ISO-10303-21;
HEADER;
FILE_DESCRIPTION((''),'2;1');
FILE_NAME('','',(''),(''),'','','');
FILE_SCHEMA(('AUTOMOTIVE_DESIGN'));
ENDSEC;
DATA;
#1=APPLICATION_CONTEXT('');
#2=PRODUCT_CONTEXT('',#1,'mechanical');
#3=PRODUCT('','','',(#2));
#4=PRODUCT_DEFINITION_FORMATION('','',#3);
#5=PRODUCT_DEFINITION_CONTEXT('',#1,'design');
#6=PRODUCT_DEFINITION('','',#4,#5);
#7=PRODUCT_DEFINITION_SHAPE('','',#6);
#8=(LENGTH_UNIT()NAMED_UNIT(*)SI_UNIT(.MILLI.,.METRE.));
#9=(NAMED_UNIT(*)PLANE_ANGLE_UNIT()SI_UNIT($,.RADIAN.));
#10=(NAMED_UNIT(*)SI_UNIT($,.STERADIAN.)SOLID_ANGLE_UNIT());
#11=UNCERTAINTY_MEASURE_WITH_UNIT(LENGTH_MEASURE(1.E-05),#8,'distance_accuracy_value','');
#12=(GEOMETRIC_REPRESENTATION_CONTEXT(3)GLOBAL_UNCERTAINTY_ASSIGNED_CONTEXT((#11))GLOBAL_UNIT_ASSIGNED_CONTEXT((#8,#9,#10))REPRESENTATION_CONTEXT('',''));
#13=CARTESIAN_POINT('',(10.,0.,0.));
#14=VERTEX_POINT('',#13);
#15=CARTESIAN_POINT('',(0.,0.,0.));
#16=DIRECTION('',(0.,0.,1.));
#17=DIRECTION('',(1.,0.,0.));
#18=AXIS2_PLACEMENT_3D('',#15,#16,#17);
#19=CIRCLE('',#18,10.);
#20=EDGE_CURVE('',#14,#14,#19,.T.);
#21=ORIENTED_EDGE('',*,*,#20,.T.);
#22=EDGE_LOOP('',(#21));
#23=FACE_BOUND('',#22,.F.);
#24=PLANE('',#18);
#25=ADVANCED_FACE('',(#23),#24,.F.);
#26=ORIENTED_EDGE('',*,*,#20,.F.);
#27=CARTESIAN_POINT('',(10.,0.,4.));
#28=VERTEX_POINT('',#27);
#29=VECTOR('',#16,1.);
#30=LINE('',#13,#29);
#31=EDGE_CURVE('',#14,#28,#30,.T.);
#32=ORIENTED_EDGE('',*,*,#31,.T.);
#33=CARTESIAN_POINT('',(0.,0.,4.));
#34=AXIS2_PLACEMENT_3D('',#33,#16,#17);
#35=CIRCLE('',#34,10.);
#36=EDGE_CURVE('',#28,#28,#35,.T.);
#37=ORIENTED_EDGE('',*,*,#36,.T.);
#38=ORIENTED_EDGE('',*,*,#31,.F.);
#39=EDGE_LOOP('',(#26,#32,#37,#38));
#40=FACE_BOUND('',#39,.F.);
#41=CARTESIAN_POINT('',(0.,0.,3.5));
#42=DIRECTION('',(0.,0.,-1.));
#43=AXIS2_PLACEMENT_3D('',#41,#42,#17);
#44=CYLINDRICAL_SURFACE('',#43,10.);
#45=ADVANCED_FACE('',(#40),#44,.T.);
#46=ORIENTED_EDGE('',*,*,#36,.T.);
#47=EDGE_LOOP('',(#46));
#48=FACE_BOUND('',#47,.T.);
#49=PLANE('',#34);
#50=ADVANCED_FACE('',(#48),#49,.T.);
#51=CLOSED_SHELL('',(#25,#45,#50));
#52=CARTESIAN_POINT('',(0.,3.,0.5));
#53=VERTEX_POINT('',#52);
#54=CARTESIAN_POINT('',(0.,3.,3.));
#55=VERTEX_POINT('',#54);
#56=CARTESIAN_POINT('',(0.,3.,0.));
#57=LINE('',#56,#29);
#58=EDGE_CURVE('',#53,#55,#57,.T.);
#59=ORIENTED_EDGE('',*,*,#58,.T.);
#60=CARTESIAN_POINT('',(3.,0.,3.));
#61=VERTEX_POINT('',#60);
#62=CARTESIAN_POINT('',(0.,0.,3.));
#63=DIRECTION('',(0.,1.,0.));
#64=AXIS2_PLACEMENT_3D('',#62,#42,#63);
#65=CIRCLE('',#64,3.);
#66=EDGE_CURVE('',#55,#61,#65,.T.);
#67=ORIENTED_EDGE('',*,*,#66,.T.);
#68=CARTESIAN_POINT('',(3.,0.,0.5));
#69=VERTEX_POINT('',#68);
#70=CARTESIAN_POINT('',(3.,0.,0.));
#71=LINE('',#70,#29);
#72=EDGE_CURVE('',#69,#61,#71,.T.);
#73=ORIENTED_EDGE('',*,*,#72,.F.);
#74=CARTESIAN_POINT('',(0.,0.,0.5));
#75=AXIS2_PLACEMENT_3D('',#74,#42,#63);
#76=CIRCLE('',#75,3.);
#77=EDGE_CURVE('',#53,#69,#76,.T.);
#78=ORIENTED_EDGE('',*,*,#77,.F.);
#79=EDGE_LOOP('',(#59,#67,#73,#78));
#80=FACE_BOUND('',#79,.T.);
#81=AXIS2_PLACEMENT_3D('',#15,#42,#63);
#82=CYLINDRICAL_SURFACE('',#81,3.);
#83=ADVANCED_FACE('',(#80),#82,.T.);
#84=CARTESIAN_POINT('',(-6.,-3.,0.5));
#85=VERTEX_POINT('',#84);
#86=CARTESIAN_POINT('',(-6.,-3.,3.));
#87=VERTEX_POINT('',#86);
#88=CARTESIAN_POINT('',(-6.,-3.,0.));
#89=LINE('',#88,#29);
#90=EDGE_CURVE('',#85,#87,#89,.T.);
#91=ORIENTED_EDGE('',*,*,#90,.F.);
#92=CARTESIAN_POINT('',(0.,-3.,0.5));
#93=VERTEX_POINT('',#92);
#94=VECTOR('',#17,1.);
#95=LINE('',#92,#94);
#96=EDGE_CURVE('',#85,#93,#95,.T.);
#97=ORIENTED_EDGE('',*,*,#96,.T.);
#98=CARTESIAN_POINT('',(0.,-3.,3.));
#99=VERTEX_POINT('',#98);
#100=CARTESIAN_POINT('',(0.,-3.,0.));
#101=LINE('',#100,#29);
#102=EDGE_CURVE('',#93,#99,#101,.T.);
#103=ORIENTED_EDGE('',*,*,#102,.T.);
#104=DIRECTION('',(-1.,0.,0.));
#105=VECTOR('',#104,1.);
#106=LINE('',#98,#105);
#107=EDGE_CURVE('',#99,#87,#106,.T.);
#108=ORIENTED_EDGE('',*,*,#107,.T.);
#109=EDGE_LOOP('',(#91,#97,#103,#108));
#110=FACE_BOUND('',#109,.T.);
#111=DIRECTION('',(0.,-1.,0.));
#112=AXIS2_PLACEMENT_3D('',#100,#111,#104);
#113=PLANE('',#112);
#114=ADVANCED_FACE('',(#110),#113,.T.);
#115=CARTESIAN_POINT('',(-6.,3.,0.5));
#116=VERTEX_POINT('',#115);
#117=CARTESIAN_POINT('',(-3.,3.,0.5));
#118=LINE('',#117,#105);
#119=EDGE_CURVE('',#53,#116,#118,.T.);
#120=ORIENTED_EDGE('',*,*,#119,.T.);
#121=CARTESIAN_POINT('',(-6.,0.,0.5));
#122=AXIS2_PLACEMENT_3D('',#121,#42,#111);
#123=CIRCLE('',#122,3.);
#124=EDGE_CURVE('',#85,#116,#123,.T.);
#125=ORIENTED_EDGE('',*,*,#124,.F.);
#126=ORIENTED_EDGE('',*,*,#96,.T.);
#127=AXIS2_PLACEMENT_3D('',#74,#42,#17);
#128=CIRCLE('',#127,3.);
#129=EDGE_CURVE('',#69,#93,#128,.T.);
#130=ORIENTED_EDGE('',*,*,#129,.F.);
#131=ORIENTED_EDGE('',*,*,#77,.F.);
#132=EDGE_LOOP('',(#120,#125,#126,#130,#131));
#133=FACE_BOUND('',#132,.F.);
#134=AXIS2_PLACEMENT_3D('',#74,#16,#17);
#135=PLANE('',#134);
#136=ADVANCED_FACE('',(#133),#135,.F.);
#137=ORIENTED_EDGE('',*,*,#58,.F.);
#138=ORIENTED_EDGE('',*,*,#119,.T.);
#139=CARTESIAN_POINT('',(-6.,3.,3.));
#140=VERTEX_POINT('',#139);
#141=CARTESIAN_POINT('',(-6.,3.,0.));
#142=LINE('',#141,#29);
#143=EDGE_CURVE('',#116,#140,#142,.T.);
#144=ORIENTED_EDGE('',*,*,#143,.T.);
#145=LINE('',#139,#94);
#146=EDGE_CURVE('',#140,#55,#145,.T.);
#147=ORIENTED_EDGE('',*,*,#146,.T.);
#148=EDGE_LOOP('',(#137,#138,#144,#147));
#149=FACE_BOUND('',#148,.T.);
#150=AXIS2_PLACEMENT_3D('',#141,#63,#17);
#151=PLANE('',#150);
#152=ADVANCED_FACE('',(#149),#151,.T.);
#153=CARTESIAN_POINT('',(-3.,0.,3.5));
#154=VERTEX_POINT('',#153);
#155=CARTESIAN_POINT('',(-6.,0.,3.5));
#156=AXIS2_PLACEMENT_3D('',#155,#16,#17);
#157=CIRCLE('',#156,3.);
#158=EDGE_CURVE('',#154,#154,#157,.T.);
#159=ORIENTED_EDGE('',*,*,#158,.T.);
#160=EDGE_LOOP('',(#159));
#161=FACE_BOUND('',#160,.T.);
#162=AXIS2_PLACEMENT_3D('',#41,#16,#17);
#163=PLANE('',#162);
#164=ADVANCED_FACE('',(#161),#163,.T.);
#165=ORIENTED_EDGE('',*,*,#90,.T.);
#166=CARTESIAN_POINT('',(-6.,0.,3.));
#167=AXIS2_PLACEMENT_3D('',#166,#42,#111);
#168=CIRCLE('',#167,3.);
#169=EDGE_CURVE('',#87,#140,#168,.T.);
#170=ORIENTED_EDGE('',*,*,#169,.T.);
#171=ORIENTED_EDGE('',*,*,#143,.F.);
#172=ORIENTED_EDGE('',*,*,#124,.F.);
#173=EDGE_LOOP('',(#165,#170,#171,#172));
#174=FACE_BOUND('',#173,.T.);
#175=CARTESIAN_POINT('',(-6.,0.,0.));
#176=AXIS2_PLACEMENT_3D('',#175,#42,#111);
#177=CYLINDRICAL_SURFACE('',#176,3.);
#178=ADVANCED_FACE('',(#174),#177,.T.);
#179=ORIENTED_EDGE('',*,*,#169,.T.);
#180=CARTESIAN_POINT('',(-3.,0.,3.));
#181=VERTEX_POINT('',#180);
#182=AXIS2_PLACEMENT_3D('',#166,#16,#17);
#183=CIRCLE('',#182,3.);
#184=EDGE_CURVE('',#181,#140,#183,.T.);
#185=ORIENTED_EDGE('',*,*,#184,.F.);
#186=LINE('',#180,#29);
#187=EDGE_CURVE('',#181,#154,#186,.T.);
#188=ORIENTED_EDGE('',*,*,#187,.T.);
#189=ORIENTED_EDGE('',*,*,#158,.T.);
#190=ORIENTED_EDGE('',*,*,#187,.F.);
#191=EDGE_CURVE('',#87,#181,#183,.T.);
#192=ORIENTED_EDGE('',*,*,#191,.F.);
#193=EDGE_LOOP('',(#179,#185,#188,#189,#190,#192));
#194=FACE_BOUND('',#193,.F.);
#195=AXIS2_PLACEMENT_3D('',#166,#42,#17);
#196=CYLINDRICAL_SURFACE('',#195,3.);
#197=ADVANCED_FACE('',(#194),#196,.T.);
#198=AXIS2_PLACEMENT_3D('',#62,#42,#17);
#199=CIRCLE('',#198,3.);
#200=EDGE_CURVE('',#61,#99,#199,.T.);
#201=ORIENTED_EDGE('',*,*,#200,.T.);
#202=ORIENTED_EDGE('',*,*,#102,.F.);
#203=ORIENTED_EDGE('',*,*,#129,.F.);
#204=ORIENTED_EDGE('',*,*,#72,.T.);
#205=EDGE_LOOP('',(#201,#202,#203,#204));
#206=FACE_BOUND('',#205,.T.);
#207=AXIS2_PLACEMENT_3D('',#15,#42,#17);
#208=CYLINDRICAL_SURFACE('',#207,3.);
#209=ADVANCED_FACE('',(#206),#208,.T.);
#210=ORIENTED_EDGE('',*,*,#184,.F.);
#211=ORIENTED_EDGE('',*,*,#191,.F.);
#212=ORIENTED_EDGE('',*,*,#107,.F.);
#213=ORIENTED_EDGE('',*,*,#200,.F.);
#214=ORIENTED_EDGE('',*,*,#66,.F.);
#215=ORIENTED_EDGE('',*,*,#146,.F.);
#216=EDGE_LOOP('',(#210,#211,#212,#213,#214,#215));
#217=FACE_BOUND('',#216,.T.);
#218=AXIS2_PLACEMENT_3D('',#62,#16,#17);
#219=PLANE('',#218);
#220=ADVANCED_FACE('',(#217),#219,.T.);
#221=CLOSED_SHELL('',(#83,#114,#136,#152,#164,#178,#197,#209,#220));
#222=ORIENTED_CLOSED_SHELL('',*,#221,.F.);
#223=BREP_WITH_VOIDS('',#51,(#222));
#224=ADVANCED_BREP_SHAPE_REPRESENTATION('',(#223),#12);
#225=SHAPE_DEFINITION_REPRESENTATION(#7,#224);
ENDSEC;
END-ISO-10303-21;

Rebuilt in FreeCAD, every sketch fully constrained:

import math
import FreeCAD as App
import Part
import Sketcher

V = App.Vector
Q = App.Units.Quantity

doc = App.newDocument("Part")
params = doc.addObject("Spreadsheet::Sheet", "Params")
for row, (alias, value) in enumerate([
    ("sketch1_diameter", "20 mm"),
    ("pad1_length", "0.5 mm"),
    ("sketch2_diameter", "20 mm"),
    ("sketch2_radius", "3 mm"),
    ("sketch2_width", "6 mm"),
    ("pad2_length", "3 mm"),
    ("sketch3_diameter", "20 mm"),
    ("sketch3_diameter2", "6 mm"),
    ("pad3_length", "0.5 mm"),
    ("sketch4_diameter", "20 mm"),
    ("pad4_length", "0.5 mm"),
], start=1):
    params.set(f"A{row}", alias)
    params.set(f"B{row}", "=" + value)
    params.setAlias(f"B{row}", alias)

body = doc.addObject("PartDesign::Body", "Body")

# Sketch on XY plane
sketch1 = doc.addObject("Sketcher::SketchObject", "Sketch")
body.addObject(sketch1)
sketch1.AttachmentSupport = (doc.XY_Plane, [""])
sketch1.MapMode = "FlatFace"
sketch1.addGeometry(Part.Circle(V(0, 0, 0), V(0, 0, 1), 10), False)
sketch1.addConstraint(Sketcher.Constraint("Coincident", 0, 3, -1, 1))
sketch1.addConstraint(Sketcher.Constraint("Diameter", 0, Q("20 mm")))
sketch1.setExpression("Constraints[1]", "Params.sketch1_diameter")
pad1 = doc.addObject("PartDesign::Pad", "Pad")
body.addObject(pad1)
pad1.Profile = sketch1
pad1.setExpression("Length", "Params.pad1_length")

# Sketch on XY plane
sketch2 = doc.addObject("Sketcher::SketchObject", "Sketch001")
body.addObject(sketch2)
sketch2.AttachmentSupport = (doc.XY_Plane, [""])
sketch2.MapMode = "FlatFace"
sketch2.addGeometry(Part.Circle(V(0, 0, 0), V(0, 0, 1), 10), False)
sketch2.addGeometry(Part.LineSegment(V(-6, 3, 0), V(0, 3, 0)), False)
sketch2.addGeometry(Part.ArcOfCircle(Part.Circle(V(0, 0, 0), V(0, 0, 1), 3), math.radians(0), math.radians(90)), False)
sketch2.addGeometry(Part.ArcOfCircle(Part.Circle(V(0, 0, 0), V(0, 0, 1), 3), math.radians(-90), math.radians(0)), False)
sketch2.addGeometry(Part.LineSegment(V(0, -3, 0), V(-6, -3, 0)), False)
sketch2.addGeometry(Part.ArcOfCircle(Part.Circle(V(-6, 0, 0), V(0, 0, 1), 3), math.radians(90), math.radians(270)), False)
sketch2.addConstraint(Sketcher.Constraint("Tangent", 1, 2, 2, 2))
sketch2.addConstraint(Sketcher.Constraint("Tangent", 2, 1, 3, 2))
sketch2.addConstraint(Sketcher.Constraint("Tangent", 3, 1, 4, 1))
sketch2.addConstraint(Sketcher.Constraint("Tangent", 4, 2, 5, 2))
sketch2.addConstraint(Sketcher.Constraint("Tangent", 5, 1, 1, 1))
sketch2.addConstraint(Sketcher.Constraint("Horizontal", 1))
sketch2.addConstraint(Sketcher.Constraint("Horizontal", 4))
sketch2.addConstraint(Sketcher.Constraint("Coincident", 0, 3, -1, 1))
sketch2.addConstraint(Sketcher.Constraint("Coincident", 2, 3, -1, 1))
sketch2.addConstraint(Sketcher.Constraint("Equal", 2, 3))
sketch2.addConstraint(Sketcher.Constraint("PointOnObject", 2, 1, -1))
sketch2.addConstraint(Sketcher.Constraint("Diameter", 0, Q("20 mm")))
sketch2.addConstraint(Sketcher.Constraint("Radius", 2, Q("3 mm")))
sketch2.addConstraint(Sketcher.Constraint("DistanceX", 1, 1, 1, 2, Q("6 mm")))
sketch2.setExpression("Constraints[11]", "Params.sketch2_diameter")
sketch2.setExpression("Constraints[12]", "Params.sketch2_radius")
sketch2.setExpression("Constraints[13]", "Params.sketch2_width")
pad2 = doc.addObject("PartDesign::Pad", "Pad001")
body.addObject(pad2)
pad2.Profile = sketch2
pad2.setExpression("Length", "Params.pad2_length")

# Sketch on XY plane
sketch3 = doc.addObject("Sketcher::SketchObject", "Sketch002")
body.addObject(sketch3)
sketch3.AttachmentSupport = (doc.XY_Plane, [""])
sketch3.MapMode = "FlatFace"
sketch3.AttachmentOffset = App.Placement(V(0, 0, 3), App.Rotation())
sketch3.addGeometry(Part.Circle(V(0, 0, 0), V(0, 0, 1), 10), False)
sketch3.addGeometry(Part.Circle(V(-6, 0, 0), V(0, 0, 1), 3), False)
sketch3.addConstraint(Sketcher.Constraint("Coincident", 0, 3, -1, 1))
sketch3.addConstraint(Sketcher.Constraint("PointOnObject", 1, 3, -1))
sketch3.addConstraint(Sketcher.Constraint("Diameter", 0, Q("20 mm")))
sketch3.addConstraint(Sketcher.Constraint("Diameter", 1, Q("6 mm")))
sketch3.addConstraint(Sketcher.Constraint("DistanceX", 1, 3, -1, 1, Q("6 mm")))
sketch3.setExpression("Constraints[2]", "Params.sketch3_diameter")
sketch3.setExpression("Constraints[3]", "Params.sketch3_diameter2")
pad3 = doc.addObject("PartDesign::Pad", "Pad002")
body.addObject(pad3)
pad3.Profile = sketch3
pad3.setExpression("Length", "Params.pad3_length")

# Sketch on XY plane
sketch4 = doc.addObject("Sketcher::SketchObject", "Sketch003")
body.addObject(sketch4)
sketch4.AttachmentSupport = (doc.XY_Plane, [""])
sketch4.MapMode = "FlatFace"
sketch4.AttachmentOffset = App.Placement(V(0, 0, 3.5), App.Rotation())
sketch4.addGeometry(Part.Circle(V(0, 0, 0), V(0, 0, 1), 10), False)
sketch4.addConstraint(Sketcher.Constraint("Coincident", 0, 3, -1, 1))
sketch4.addConstraint(Sketcher.Constraint("Diameter", 0, Q("20 mm")))
sketch4.setExpression("Constraints[1]", "Params.sketch4_diameter")
pad4 = doc.addObject("PartDesign::Pad", "Pad003")
body.addObject(pad4)
pad4.Profile = sketch4
pad4.setExpression("Length", "Params.pad4_length")

doc.recompute()
